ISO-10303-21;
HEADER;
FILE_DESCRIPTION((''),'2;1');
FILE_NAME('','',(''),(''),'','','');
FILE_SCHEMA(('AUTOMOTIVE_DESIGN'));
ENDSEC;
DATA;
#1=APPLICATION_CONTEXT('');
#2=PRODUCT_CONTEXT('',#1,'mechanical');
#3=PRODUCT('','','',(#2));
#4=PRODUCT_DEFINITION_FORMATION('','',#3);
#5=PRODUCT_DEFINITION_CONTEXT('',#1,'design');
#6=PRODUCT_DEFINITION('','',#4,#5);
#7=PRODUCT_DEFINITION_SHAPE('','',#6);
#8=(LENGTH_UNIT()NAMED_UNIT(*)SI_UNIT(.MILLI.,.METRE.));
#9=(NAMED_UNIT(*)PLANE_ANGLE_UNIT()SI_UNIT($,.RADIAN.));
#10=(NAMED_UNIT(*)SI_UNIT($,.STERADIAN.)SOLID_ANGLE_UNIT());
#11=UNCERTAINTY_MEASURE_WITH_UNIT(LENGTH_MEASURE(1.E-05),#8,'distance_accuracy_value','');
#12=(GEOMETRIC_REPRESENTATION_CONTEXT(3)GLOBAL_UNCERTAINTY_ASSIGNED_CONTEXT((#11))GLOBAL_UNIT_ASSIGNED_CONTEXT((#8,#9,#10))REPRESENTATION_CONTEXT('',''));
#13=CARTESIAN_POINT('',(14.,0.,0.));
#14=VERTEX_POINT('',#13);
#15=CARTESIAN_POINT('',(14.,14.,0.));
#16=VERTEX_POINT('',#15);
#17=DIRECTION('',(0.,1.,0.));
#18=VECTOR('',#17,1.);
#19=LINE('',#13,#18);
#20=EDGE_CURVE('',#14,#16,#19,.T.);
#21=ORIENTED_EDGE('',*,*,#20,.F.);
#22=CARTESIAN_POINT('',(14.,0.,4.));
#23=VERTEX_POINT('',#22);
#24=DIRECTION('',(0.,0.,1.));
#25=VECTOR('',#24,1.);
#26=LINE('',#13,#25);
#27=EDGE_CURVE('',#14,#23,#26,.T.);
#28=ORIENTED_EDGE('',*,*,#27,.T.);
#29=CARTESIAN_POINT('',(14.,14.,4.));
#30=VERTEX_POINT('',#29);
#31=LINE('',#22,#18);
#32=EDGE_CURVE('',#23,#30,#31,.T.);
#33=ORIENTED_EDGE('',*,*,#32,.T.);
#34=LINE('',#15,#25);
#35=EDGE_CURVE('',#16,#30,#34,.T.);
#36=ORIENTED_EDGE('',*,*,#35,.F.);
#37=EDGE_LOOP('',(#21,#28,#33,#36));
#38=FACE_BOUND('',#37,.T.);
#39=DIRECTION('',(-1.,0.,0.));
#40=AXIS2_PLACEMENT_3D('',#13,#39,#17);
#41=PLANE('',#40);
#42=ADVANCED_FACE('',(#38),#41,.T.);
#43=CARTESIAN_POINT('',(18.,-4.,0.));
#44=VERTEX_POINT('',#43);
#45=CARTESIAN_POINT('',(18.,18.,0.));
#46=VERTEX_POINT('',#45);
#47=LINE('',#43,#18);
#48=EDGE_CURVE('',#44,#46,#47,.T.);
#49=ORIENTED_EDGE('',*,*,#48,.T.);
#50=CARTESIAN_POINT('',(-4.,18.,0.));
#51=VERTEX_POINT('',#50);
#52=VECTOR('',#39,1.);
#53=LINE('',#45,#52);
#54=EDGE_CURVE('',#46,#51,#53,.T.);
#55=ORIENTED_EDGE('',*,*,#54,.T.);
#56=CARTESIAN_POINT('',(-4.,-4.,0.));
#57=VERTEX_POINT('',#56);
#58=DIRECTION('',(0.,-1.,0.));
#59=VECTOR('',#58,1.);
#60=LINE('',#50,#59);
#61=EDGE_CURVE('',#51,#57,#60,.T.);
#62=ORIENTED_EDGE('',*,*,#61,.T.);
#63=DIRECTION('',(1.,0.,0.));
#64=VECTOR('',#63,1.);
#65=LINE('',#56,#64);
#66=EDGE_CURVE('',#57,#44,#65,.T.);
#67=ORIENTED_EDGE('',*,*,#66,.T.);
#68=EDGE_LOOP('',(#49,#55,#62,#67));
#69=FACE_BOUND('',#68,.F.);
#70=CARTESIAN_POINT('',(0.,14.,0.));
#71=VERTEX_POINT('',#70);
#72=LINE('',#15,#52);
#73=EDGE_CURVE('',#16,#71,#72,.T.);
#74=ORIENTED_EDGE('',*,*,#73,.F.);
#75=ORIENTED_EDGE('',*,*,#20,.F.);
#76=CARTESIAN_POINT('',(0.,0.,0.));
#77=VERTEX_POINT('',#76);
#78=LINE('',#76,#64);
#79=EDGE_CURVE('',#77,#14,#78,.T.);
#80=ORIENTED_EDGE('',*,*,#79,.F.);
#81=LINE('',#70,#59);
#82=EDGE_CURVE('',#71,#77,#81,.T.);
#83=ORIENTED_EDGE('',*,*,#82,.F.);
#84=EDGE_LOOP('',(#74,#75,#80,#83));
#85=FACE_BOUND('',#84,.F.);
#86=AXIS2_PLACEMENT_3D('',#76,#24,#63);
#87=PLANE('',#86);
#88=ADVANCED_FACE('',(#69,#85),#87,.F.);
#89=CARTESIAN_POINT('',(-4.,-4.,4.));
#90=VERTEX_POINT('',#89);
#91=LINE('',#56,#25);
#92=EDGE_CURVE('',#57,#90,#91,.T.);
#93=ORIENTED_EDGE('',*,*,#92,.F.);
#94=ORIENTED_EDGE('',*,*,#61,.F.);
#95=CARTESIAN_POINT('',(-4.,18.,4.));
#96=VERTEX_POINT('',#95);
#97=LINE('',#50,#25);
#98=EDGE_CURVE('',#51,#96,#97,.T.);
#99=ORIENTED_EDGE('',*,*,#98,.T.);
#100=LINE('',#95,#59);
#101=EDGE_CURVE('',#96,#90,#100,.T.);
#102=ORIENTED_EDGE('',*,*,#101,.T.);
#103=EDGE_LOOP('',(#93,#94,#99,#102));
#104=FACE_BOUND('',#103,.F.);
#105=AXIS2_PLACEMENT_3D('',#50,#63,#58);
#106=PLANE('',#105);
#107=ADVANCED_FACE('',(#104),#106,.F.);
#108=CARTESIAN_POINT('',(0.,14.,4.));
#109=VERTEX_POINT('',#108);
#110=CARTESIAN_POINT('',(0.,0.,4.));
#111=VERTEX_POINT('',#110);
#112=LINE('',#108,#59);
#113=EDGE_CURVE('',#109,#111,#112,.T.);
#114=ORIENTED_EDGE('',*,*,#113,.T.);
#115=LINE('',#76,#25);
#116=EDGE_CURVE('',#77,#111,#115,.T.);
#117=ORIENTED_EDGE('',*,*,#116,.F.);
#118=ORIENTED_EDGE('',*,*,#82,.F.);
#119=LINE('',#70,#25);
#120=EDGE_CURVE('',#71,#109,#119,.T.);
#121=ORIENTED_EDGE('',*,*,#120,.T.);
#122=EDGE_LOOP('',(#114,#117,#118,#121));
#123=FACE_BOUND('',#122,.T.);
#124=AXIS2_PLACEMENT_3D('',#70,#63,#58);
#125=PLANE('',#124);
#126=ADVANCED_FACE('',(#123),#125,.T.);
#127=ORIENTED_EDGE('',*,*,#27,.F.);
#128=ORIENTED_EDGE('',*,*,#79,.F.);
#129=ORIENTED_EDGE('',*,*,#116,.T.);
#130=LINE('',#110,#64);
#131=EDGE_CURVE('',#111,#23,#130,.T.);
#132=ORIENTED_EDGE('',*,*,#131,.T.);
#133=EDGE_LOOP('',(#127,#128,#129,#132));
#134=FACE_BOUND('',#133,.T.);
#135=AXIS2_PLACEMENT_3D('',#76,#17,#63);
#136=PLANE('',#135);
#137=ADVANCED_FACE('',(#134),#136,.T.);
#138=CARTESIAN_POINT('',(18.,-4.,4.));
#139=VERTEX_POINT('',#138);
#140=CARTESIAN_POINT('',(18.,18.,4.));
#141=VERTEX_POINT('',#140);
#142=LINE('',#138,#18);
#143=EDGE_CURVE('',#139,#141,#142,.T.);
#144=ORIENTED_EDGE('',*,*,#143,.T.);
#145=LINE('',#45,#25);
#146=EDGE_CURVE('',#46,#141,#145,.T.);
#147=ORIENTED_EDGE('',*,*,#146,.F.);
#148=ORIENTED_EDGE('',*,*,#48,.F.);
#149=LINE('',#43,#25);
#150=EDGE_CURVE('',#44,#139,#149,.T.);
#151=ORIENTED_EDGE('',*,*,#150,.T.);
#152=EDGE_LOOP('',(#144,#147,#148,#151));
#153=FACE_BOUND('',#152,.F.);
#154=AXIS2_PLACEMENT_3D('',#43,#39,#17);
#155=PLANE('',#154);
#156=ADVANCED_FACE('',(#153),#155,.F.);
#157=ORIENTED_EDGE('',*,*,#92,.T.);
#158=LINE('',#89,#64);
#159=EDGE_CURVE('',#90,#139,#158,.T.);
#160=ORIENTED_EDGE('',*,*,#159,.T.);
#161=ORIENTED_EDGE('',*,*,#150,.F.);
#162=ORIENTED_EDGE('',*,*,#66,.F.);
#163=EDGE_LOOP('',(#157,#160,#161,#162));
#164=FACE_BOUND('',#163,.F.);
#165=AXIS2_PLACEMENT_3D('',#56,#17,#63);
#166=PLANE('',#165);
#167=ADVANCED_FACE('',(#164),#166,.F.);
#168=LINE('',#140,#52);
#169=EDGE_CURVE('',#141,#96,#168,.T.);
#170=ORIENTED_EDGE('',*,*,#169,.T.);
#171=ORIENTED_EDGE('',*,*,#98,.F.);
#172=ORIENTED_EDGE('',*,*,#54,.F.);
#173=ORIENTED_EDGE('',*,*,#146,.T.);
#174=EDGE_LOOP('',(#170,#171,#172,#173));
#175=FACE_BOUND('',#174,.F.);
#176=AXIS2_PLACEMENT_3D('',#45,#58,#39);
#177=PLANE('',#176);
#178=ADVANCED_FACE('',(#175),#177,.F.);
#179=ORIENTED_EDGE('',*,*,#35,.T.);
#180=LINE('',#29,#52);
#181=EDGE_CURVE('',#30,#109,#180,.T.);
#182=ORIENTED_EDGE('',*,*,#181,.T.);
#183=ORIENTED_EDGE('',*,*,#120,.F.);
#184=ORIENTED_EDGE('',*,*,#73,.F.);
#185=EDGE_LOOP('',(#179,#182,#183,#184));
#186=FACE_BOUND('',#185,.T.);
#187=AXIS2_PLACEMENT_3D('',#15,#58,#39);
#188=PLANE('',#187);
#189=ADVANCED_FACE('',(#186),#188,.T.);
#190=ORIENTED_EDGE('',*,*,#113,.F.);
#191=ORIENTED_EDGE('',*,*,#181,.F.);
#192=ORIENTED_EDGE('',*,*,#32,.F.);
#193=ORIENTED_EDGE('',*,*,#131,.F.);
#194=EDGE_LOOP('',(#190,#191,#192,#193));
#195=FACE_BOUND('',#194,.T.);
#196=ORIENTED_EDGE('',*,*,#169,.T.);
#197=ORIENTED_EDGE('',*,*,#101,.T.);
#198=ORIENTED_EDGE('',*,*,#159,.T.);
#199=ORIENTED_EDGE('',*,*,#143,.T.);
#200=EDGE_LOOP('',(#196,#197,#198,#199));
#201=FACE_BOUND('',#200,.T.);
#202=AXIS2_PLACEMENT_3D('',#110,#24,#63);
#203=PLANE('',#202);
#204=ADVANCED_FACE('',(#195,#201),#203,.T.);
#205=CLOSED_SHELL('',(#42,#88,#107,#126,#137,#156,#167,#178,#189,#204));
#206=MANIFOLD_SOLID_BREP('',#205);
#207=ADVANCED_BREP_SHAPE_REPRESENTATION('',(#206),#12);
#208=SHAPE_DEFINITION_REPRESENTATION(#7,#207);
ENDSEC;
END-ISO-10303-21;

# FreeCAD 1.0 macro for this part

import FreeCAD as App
import Part
import Sketcher
from FreeCAD import Vector
Q = App.Units.Quantity


def add_polygon(sketch, points):
    """Adds a closed chain of lines whose ends are joined by coincident constraints."""
    first, n = sketch.GeometryCount, len(points)
    for a, b in zip(points, points[1:] + points[:1]):
        sketch.addGeometry(Part.LineSegment(App.Vector(*a, 0), App.Vector(*b, 0)), False)
    for i in range(n):
        sketch.addConstraint(Sketcher.Constraint("Coincident", first + i, 2, first + (i + 1) % n, 1))

doc = App.newDocument("Part")
body = doc.addObject("PartDesign::Body", "Body")

# Sketch on XY plane
sketch1 = body.newObject("Sketcher::SketchObject", "Sketch")
sketch1.AttachmentSupport = (doc.getObject("XY_Plane"), [""])
sketch1.MapMode = "FlatFace"
add_polygon(sketch1, [(-4, 18), (-4, -4), (18, -4), (18, 18)])  # lines 0-3
add_polygon(sketch1, [(14, 0), (0, 0), (0, 14), (14, 14)])  # lines 4-7
sketch1.addConstraint([
    Sketcher.Constraint("Vertical", 0),
    Sketcher.Constraint("Horizontal", 1),
    Sketcher.Constraint("Vertical", 2),
    Sketcher.Constraint("Horizontal", 3),
    Sketcher.Constraint("Horizontal", 4),
    Sketcher.Constraint("Vertical", 5),
    Sketcher.Constraint("Horizontal", 6),
    Sketcher.Constraint("Vertical", 7),
    Sketcher.Constraint("Coincident", 4, 2, -1, 1),
    Sketcher.Constraint("Equal", 3, 0),
    Sketcher.Constraint("Equal", 6, 5),
    Sketcher.Constraint("DistanceX", 4, 2, 4, 1, Q("14 mm")),
    Sketcher.Constraint("DistanceX", 0, 2, -1, 1, Q("4 mm")),
    Sketcher.Constraint("DistanceY", 0, 2, -1, 1, Q("4 mm")),
    Sketcher.Constraint("DistanceY", 5, 2, 3, 2, Q("4 mm")),
])
pad1 = body.newObject("PartDesign::Pad", "Pad")
pad1.Profile = sketch1
pad1.Length = 4

doc.recompute()
